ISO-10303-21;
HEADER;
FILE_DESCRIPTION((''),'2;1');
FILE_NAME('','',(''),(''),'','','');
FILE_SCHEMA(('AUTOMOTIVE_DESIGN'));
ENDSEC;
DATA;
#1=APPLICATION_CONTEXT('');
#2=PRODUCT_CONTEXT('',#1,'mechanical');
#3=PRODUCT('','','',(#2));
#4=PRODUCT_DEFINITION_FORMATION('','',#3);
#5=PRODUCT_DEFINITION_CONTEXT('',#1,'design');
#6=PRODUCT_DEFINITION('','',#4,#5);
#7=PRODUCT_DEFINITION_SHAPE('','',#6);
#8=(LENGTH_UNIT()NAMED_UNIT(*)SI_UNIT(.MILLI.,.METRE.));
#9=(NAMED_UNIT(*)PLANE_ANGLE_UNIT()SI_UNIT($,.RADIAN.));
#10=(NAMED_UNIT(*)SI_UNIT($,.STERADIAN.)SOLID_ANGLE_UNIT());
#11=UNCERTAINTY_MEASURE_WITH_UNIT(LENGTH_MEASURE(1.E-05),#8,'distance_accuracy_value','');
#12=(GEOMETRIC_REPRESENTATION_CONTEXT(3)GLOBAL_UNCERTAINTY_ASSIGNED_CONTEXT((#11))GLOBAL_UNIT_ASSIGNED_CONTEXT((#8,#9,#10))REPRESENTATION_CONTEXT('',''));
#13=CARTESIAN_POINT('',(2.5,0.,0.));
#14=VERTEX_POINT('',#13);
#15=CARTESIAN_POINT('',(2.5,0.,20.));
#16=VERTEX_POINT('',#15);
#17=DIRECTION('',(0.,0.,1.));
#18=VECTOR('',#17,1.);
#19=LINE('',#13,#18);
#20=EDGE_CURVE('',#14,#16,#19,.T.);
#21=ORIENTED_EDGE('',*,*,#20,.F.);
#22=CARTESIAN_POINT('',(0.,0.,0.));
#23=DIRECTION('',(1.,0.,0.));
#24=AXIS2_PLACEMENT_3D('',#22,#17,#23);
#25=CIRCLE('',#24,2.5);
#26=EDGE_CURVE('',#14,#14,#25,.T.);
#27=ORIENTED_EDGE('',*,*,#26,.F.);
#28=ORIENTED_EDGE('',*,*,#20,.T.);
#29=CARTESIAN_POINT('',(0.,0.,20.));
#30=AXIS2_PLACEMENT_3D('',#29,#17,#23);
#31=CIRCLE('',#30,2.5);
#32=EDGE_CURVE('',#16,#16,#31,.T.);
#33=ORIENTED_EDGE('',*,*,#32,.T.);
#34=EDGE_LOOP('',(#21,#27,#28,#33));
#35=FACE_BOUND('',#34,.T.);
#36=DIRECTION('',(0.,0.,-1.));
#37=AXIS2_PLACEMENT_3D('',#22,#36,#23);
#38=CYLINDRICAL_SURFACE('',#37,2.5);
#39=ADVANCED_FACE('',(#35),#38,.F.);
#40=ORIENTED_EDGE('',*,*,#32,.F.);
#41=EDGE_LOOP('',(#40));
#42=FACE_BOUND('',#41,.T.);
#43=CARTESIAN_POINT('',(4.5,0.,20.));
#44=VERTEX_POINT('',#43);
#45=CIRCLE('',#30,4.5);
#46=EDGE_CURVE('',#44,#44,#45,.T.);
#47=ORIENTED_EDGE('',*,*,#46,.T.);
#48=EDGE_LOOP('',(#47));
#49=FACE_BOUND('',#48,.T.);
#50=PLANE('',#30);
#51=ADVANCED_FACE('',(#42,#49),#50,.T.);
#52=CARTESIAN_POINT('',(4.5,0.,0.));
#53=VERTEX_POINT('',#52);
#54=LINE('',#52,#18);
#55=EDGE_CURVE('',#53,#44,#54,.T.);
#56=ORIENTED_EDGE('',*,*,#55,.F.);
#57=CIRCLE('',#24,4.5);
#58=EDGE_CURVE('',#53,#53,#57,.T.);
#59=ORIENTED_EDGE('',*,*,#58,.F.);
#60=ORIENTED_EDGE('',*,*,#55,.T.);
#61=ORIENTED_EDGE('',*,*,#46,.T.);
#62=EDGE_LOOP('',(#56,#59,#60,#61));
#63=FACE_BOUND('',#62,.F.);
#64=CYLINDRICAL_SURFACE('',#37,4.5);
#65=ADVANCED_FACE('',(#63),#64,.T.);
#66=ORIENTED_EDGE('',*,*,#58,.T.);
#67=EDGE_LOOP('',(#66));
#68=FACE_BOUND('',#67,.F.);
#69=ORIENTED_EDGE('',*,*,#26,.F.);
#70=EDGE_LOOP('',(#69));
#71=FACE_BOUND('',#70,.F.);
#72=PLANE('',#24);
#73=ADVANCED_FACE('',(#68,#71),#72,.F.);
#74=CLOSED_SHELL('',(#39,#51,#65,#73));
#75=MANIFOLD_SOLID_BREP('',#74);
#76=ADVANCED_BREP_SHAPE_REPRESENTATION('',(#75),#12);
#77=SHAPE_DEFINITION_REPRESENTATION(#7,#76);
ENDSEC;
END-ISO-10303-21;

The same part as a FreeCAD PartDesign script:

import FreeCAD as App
import Part
import Sketcher

V = App.Vector

doc = App.newDocument("Part")
body = doc.addObject("PartDesign::Body", "Body")

sketch1 = body.newObject("Sketcher::SketchObject", "Sketch")
sketch1.AttachmentSupport = (doc.getObject("XY_Plane"), [""])
sketch1.MapMode = "FlatFace"
sketch1.addGeometry([
    Part.Circle(V(0, 0, 0), V(0, 0, 1), 4.5),
    Part.Circle(V(0, 0, 0), V(0, 0, 1), 2.5),
], False)
sketch1.addConstraint([
    Sketcher.Constraint("Coincident", 0, 3, -1, 1),
    Sketcher.Constraint("Coincident", 1, 3, -1, 1),
    Sketcher.Constraint("Diameter", 0, 9.0),
    Sketcher.Constraint("Diameter", 1, 5.0),
])
pad1 = body.newObject("PartDesign::Pad", "Pad")
pad1.Profile = sketch1
pad1.Length = 20

doc.recompute()
